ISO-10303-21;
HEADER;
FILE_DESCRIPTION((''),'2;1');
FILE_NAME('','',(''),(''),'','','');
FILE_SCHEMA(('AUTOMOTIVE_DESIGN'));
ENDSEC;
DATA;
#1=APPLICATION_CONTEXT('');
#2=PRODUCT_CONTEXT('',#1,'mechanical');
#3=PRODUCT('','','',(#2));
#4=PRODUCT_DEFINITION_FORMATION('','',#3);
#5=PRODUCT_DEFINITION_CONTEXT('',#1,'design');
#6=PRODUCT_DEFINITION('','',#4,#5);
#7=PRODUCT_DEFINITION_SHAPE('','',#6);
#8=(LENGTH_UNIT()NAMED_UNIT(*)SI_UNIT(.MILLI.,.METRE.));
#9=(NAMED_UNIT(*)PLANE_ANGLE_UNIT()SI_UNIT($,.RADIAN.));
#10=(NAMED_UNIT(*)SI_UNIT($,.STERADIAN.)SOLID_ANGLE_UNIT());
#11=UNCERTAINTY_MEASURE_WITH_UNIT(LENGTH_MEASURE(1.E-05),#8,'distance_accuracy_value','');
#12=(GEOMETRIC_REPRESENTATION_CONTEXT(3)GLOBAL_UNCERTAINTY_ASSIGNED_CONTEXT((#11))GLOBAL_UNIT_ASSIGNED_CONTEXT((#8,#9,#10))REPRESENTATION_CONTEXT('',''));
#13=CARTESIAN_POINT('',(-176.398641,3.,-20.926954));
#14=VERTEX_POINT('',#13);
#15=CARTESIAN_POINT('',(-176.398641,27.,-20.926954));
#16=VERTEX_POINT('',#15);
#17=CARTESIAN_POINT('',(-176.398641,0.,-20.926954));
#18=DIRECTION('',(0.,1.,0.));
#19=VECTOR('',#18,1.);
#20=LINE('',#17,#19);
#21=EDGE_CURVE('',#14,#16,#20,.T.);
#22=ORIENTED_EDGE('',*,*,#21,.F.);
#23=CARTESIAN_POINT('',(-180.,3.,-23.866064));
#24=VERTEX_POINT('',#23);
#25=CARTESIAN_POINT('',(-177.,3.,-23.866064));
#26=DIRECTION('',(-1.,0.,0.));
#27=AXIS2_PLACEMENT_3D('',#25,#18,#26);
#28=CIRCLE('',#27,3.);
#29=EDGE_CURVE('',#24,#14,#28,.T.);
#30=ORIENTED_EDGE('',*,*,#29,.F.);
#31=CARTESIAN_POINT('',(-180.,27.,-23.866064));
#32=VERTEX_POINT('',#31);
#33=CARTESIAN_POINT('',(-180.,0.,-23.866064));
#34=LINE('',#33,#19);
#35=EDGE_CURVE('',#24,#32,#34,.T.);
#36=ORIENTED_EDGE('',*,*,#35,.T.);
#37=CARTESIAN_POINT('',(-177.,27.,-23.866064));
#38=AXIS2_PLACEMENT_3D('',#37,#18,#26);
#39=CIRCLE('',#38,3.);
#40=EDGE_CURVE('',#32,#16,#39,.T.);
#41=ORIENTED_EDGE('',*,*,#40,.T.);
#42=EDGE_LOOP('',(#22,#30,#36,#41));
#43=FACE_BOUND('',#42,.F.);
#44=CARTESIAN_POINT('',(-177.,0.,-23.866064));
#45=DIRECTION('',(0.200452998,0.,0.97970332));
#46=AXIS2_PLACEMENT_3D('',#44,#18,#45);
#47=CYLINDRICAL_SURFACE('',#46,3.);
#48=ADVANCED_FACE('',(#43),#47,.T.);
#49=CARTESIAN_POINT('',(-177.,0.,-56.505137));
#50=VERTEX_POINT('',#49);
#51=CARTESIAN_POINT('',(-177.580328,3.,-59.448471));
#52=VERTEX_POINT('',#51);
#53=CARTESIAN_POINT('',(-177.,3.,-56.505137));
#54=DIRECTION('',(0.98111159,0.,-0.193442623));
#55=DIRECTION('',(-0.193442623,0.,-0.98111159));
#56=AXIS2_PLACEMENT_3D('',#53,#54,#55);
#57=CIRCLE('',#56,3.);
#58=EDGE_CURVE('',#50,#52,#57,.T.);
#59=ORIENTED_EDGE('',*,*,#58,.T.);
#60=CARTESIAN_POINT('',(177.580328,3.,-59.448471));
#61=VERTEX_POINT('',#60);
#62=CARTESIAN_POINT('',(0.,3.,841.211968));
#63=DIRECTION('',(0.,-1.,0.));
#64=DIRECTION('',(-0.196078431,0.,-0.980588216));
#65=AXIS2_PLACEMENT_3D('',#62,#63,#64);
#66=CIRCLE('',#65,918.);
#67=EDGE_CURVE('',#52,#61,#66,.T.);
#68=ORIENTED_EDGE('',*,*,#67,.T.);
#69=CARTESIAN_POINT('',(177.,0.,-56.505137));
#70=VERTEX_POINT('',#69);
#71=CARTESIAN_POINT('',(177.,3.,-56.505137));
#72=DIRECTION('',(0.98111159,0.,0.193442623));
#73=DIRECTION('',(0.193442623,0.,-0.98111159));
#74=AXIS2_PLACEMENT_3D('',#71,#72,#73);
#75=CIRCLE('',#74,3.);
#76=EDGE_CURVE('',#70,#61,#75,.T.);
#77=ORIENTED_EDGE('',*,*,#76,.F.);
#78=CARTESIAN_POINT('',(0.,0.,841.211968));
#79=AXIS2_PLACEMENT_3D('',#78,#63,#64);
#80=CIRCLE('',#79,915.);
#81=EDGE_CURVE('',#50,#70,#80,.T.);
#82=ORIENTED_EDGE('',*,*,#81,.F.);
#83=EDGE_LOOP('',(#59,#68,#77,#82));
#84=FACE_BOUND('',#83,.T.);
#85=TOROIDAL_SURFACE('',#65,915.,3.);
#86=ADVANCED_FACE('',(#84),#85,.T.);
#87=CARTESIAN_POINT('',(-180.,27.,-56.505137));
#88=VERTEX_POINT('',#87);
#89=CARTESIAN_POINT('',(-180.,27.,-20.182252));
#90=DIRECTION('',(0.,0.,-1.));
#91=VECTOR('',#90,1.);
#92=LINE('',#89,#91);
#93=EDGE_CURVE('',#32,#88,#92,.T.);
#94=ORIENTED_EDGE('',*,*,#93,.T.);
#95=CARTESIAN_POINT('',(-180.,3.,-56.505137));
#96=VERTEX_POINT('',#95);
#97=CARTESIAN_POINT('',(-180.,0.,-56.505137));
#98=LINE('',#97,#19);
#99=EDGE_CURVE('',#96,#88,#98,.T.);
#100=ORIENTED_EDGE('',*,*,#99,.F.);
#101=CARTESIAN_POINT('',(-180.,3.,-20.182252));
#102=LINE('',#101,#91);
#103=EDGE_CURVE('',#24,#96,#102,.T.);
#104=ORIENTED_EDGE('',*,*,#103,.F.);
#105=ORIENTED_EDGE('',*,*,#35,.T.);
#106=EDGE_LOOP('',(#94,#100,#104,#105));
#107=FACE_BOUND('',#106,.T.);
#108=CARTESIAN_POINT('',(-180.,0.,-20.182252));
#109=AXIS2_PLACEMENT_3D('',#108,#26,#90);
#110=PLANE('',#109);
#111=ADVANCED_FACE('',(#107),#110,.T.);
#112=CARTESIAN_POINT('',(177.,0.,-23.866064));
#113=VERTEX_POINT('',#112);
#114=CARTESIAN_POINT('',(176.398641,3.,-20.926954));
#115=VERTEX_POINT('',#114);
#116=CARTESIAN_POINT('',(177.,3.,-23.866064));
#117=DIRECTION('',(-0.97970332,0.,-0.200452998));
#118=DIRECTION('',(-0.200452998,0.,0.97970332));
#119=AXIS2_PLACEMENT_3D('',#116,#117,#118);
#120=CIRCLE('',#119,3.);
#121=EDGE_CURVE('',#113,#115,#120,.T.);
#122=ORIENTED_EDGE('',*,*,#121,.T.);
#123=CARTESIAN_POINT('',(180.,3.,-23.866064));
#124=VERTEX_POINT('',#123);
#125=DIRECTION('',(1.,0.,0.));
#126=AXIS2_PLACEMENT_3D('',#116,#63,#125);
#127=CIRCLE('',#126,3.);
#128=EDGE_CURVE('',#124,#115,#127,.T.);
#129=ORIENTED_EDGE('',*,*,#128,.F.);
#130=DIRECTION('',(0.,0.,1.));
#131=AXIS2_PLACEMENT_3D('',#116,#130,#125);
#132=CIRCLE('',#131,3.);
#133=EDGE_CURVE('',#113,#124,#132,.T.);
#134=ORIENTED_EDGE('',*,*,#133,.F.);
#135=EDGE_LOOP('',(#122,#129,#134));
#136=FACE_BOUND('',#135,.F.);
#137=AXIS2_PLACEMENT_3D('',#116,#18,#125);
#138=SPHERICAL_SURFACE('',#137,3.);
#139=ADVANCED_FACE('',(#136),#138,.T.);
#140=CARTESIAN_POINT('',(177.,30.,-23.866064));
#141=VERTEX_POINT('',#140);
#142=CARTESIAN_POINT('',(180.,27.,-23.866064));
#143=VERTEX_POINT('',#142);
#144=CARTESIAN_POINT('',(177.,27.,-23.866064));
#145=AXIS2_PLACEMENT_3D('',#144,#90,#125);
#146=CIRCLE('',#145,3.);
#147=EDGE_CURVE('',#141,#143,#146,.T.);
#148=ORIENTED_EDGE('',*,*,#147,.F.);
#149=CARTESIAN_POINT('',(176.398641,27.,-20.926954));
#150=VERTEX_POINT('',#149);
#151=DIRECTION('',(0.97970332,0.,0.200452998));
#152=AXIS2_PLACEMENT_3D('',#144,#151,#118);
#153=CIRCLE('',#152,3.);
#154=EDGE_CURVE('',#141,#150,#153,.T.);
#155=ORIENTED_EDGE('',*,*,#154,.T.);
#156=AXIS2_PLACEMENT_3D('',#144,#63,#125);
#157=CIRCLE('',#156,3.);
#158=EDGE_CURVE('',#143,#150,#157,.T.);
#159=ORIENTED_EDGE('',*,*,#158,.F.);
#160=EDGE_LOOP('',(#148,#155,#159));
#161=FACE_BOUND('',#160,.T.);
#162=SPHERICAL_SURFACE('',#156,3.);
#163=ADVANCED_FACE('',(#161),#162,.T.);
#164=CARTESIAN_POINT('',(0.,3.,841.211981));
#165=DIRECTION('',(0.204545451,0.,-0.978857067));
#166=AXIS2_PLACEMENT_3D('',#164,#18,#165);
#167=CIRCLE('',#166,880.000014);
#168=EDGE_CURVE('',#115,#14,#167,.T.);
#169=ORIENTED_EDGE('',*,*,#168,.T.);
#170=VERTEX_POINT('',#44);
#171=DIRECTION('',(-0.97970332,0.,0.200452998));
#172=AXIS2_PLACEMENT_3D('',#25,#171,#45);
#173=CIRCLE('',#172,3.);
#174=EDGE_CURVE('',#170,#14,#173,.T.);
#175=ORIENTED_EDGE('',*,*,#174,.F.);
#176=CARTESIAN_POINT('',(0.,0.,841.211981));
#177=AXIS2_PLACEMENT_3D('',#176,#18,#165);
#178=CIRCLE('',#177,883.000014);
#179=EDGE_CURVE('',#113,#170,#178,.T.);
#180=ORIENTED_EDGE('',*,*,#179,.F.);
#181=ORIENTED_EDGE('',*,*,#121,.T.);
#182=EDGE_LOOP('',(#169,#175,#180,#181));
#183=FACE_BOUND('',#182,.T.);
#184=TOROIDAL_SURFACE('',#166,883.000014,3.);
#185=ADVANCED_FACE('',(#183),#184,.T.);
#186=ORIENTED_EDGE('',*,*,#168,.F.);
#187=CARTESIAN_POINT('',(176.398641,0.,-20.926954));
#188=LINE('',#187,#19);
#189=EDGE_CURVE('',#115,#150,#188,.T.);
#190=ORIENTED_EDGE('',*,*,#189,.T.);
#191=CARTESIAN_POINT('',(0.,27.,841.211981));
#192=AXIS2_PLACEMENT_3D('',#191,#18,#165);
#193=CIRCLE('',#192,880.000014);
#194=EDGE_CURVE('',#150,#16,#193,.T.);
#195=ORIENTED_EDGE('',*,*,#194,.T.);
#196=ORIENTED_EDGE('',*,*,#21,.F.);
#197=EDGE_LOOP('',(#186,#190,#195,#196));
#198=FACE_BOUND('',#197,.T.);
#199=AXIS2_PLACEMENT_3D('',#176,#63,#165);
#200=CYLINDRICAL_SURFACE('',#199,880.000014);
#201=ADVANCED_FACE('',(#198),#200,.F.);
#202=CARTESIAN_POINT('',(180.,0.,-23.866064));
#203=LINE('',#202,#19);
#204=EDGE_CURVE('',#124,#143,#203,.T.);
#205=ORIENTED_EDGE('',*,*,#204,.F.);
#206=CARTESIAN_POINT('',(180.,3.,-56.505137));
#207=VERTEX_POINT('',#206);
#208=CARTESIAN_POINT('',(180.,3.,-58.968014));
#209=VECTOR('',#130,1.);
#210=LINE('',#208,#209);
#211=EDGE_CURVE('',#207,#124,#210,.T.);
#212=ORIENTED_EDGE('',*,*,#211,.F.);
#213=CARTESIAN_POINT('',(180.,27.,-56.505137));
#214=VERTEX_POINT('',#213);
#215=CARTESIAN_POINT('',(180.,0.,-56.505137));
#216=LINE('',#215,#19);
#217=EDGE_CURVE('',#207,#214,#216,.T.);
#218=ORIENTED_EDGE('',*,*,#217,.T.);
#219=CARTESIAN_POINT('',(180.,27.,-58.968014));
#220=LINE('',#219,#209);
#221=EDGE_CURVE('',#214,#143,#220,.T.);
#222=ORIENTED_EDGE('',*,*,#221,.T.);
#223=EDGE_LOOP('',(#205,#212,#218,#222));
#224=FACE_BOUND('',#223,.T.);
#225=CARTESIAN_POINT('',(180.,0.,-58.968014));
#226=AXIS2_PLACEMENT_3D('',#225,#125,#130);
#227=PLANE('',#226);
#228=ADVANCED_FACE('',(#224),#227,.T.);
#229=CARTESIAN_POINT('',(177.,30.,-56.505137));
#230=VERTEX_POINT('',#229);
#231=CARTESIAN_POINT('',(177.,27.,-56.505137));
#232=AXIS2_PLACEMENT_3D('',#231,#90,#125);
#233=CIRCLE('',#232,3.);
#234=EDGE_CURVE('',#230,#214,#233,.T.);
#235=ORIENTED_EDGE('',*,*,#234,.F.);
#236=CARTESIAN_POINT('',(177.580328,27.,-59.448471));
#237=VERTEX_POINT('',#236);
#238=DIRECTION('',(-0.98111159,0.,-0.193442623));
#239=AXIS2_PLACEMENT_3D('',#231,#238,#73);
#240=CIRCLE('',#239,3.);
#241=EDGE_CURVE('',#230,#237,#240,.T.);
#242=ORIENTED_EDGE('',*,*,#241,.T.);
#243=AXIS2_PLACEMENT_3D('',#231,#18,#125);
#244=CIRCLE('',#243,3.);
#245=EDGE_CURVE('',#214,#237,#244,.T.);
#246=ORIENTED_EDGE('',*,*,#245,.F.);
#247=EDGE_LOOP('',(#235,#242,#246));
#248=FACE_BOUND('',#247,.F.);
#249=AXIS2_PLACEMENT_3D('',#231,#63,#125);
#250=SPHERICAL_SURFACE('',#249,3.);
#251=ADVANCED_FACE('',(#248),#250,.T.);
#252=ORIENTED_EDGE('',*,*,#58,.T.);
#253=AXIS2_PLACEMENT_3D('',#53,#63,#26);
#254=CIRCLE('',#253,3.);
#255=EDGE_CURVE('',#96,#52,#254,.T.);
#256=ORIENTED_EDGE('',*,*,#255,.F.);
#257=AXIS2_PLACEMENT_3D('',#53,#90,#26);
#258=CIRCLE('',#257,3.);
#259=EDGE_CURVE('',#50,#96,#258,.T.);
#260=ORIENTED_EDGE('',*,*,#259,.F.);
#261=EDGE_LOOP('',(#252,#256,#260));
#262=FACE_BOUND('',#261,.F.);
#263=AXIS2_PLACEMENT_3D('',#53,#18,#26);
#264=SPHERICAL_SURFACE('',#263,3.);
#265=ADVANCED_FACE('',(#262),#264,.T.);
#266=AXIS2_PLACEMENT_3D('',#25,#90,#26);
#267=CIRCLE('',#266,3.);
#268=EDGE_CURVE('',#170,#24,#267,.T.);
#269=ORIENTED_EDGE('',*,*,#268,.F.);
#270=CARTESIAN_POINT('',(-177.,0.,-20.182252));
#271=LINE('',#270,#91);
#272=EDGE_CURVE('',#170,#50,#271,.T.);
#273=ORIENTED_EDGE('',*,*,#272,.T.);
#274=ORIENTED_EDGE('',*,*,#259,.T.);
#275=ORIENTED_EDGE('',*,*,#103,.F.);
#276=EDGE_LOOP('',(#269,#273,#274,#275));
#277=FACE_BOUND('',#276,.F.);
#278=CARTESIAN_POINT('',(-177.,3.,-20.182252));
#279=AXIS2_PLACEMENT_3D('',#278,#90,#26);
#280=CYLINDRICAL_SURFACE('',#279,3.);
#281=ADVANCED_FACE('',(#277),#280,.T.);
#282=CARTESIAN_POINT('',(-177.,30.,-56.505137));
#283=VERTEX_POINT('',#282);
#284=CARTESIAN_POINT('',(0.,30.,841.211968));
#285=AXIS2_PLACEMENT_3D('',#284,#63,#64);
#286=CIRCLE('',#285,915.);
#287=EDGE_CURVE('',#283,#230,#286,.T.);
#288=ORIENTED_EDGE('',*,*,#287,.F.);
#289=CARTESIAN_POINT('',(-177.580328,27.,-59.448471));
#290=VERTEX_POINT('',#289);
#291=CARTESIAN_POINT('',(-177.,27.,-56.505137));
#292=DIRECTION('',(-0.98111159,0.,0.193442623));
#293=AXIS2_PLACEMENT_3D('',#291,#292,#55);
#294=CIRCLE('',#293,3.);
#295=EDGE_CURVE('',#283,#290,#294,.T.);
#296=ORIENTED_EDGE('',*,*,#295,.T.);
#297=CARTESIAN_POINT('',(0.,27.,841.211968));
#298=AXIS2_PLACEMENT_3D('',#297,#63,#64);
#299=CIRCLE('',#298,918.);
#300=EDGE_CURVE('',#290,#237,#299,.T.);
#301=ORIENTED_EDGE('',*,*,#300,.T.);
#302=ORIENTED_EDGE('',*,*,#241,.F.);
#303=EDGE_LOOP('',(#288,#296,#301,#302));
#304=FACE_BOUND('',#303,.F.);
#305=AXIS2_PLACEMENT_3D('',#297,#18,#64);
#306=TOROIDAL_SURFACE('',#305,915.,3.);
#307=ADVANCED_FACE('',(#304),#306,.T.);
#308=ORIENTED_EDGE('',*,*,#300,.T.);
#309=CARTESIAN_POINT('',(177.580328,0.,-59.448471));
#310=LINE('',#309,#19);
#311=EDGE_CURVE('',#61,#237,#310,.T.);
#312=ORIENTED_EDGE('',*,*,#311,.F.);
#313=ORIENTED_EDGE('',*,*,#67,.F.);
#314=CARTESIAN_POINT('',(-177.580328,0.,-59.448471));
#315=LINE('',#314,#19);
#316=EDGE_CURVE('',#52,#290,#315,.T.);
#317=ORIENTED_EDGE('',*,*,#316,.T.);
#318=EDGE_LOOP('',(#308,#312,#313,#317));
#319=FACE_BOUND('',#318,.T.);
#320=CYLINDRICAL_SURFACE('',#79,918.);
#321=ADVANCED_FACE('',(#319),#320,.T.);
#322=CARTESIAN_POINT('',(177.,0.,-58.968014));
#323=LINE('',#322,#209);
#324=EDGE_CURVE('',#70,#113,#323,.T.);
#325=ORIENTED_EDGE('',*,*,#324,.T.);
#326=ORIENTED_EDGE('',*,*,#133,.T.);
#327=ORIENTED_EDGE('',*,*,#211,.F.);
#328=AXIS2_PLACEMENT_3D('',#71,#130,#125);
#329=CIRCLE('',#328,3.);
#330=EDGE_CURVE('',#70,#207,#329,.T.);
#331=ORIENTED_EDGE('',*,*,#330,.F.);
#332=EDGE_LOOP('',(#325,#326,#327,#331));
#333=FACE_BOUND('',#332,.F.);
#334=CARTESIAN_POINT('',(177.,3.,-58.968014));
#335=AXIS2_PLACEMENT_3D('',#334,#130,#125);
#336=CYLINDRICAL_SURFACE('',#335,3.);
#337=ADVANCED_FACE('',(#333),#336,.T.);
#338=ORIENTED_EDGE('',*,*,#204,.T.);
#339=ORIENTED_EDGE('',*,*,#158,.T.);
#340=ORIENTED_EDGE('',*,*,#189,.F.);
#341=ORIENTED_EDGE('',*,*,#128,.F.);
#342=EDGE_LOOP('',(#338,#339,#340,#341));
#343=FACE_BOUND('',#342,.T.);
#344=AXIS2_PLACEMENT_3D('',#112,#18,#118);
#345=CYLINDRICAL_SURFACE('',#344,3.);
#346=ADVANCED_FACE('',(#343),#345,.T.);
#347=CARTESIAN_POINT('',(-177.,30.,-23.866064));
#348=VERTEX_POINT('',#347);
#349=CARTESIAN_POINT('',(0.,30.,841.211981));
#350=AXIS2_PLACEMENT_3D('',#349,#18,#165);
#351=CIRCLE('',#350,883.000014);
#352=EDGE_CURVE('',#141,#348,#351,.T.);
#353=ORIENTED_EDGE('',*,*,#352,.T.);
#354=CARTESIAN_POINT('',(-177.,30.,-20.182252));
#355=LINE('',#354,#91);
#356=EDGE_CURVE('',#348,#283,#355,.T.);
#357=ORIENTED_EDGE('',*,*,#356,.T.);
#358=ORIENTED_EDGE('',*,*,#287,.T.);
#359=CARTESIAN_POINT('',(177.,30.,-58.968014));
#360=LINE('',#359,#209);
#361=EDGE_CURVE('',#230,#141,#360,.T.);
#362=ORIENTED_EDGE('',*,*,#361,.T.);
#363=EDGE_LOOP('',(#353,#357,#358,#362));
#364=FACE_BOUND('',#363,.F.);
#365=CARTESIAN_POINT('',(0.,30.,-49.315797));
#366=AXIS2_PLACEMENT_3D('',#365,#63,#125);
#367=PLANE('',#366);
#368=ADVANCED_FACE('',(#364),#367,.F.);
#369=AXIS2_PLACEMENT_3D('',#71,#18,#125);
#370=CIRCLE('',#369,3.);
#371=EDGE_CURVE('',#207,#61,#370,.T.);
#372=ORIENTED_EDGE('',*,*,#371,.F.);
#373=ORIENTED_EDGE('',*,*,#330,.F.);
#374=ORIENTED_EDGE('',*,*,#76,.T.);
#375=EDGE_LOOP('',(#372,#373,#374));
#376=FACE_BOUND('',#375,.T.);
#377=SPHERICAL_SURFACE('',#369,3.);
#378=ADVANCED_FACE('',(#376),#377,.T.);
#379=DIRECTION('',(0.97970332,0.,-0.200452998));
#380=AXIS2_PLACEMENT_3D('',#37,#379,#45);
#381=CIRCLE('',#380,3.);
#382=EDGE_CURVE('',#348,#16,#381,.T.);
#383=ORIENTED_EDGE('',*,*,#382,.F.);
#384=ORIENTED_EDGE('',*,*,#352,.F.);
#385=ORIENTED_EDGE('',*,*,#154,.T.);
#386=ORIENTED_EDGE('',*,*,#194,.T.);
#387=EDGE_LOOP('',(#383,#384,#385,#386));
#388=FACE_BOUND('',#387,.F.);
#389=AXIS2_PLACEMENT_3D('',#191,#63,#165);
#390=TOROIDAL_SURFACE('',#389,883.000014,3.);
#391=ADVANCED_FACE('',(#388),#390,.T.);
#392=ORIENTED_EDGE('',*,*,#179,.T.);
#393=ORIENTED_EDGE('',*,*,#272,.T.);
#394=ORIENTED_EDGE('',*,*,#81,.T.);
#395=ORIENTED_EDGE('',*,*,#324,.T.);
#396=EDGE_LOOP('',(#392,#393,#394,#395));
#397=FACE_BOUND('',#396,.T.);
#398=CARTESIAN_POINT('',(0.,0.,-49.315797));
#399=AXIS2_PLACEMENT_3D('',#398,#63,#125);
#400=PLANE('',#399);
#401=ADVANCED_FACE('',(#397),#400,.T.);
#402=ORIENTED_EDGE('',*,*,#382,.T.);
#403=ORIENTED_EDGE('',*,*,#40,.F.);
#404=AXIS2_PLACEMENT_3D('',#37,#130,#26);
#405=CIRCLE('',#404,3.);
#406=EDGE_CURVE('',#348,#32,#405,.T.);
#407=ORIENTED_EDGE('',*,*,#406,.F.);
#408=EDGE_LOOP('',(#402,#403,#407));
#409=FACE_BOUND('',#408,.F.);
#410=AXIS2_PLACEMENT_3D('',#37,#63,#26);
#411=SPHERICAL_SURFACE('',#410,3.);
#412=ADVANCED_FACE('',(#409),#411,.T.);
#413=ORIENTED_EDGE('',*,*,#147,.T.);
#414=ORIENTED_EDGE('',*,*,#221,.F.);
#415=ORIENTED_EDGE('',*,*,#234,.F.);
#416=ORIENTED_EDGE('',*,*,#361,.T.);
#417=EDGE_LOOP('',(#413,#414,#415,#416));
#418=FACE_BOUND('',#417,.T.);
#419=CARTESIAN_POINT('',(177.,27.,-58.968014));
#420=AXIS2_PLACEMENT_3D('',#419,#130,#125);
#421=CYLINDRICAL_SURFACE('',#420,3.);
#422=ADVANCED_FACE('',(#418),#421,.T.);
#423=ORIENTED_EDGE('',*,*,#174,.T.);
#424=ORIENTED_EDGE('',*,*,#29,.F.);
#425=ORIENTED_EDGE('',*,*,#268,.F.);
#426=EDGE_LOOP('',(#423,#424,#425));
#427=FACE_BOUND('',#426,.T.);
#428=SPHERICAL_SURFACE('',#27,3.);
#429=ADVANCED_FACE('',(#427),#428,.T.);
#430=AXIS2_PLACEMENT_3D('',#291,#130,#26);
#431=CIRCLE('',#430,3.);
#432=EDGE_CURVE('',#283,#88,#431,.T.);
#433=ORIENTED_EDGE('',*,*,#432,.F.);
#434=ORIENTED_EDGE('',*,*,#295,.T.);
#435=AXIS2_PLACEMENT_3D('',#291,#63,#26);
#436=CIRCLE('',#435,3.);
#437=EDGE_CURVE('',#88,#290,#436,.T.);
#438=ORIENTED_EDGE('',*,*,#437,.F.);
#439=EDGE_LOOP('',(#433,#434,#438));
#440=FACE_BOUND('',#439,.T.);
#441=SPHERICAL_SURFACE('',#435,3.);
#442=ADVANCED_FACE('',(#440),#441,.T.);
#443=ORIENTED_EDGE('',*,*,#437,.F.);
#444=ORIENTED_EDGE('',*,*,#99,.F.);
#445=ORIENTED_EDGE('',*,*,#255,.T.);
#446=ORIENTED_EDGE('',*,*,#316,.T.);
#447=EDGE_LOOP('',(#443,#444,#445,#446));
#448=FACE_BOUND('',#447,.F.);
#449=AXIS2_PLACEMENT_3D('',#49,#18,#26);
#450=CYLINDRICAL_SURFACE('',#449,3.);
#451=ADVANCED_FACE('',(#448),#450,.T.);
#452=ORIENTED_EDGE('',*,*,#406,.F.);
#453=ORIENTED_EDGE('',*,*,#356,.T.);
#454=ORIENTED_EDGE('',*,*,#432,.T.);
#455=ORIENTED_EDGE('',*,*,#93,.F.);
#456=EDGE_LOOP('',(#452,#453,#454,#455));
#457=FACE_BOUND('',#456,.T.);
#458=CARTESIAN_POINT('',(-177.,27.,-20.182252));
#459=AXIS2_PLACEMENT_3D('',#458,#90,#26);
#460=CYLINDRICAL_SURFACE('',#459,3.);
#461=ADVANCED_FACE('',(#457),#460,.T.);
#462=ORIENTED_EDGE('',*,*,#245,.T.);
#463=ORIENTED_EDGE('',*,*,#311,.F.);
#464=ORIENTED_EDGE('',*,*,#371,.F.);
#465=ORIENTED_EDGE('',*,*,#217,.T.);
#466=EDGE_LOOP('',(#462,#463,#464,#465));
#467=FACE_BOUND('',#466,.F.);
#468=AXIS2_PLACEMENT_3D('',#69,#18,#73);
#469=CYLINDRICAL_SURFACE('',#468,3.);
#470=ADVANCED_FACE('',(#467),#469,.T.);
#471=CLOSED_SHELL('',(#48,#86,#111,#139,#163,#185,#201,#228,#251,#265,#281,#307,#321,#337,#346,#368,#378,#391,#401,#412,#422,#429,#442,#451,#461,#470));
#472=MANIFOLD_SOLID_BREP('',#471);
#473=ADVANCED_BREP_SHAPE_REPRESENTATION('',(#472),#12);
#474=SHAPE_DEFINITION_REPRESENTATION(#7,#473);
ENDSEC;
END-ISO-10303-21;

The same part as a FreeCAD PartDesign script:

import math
import FreeCAD as App
import Part
import Sketcher

doc = App.newDocument("Part")
params = doc.addObject("Spreadsheet::Sheet", "Params")
for row, (alias, value) in enumerate([
    ("sketch1_radius", "918 mm"),
    ("pad1_length", "30 mm"),
    ("fillet_radius", "3 mm"),
], start=1):
    params.set(f"A{row}", alias)
    params.set(f"B{row}", "=" + value)
    params.setAlias(f"B{row}", alias)

body = doc.addObject("PartDesign::Body", "Body")

sketch1 = body.newObject("Sketcher::SketchObject", "Sketch")
sketch1.AttachmentSupport = (doc.getObject("XZ_Plane"), [""])
sketch1.MapMode = "FlatFace"
sketch1.addGeometry(Part.ArcOfCircle(Part.Circle(App.Vector(0, 841, 0), App.Vector(0, 0, 1), 880), math.radians(-102), math.radians(-78)), False)
sketch1.addGeometry(Part.LineSegment(App.Vector(-180, -20, 0), App.Vector(-180, -59, 0)), False)
sketch1.addGeometry(Part.ArcOfCircle(Part.Circle(App.Vector(0, 841, 0), App.Vector(0, 0, 1), 918), math.radians(-101), math.radians(-79)), False)
sketch1.addGeometry(Part.LineSegment(App.Vector(180, -59, 0), App.Vector(180, -20, 0)), False)
sketch1.addConstraint(Sketcher.Constraint("Coincident", 0, 1, 1, 1))
sketch1.addConstraint(Sketcher.Constraint("Coincident", 1, 2, 2, 1))
sketch1.addConstraint(Sketcher.Constraint("Coincident", 2, 2, 3, 1))
sketch1.addConstraint(Sketcher.Constraint("Coincident", 3, 2, 0, 2))
sketch1.addConstraint(Sketcher.Constraint("Vertical", 1))
sketch1.addConstraint(Sketcher.Constraint("Vertical", 3))
sketch1.addConstraint(Sketcher.Constraint("PointOnObject", 0, 3, -2))
sketch1.addConstraint(Sketcher.Constraint("PointOnObject", 2, 3, -2))
sketch1.addConstraint(Sketcher.Constraint("Equal", 1, 3))
sketch1.addConstraint(Sketcher.Constraint("Radius", 2, 918.0))
sketch1.addConstraint(Sketcher.Constraint("DistanceX", 1, 2, -1, 1, 180.0))
sketch1.addConstraint(Sketcher.Constraint("Radius", 0, 880.000014))
sketch1.addConstraint(Sketcher.Constraint("DistanceY", 1, 2, 1, 1, 38.785762))
sketch1.addConstraint(Sketcher.Constraint("DistanceY", -1, 1, 0, 3, 841.211981))
sketch1.setExpression("Constraints[9]", "Params.sketch1_radius")
pad1 = body.newObject("PartDesign::Pad", "Pad")
pad1.Profile = sketch1
pad1.setExpression("Length", "Params.pad1_length")
pad1.Reversed = True
doc.recompute()

fillet = body.newObject("PartDesign::Fillet", "Fillet")
fillet.Base = (pad1, ["Edge1"])
fillet.UseAllEdges = True
fillet.setExpression("Radius", "Params.fillet_radius")

doc.recompute()
